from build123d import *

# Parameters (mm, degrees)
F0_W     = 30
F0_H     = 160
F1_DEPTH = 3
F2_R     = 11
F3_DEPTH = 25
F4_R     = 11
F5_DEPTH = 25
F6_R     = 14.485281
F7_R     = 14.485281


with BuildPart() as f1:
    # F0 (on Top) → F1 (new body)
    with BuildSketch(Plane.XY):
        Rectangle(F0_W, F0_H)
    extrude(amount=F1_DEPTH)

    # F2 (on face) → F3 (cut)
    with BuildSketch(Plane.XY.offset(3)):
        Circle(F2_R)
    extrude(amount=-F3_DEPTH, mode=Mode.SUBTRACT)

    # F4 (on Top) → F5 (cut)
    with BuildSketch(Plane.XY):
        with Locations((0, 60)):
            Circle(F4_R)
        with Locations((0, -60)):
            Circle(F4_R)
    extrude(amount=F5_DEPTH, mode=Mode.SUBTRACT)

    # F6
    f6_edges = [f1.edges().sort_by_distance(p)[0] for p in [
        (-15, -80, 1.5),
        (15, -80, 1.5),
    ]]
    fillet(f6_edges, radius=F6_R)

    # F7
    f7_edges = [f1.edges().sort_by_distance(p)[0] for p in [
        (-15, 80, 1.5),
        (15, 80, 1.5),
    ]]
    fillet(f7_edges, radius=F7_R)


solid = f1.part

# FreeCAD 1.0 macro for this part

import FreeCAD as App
import Part
import Sketcher
Q = App.Units.Quantity


def edges_at(feature, points):
    """Names of the edges that pass closest to the given points."""
    edges = feature.Shape.Edges
    near = lambda p: min(range(len(edges)), key=lambda i: edges[i].distToShape(Part.Vertex(*p))[0])
    return sorted({f"Edge{near(p) + 1}" for p in points})

doc = App.newDocument("Part")
body = doc.addObject("PartDesign::Body", "Body")

sketch1 = body.newObject("Sketcher::SketchObject", "Sketch")
sketch1.AttachmentSupport = (doc.getObject("XY_Plane"), [""])
sketch1.MapMode = "FlatFace"
sketch1.addGeometry([
    Part.LineSegment(App.Vector(-15, 80, 0), App.Vector(-15, -80, 0)),
    Part.LineSegment(App.Vector(-15, -80, 0), App.Vector(15, -80, 0)),
    Part.LineSegment(App.Vector(15, -80, 0), App.Vector(15, 80, 0)),
    Part.LineSegment(App.Vector(15, 80, 0), App.Vector(-15, 80, 0)),
], False)
sketch1.addConstraint([
    Sketcher.Constraint("Coincident", 0, 2, 1, 1),
    Sketcher.Constraint("Coincident", 1, 2, 2, 1),
    Sketcher.Constraint("Coincident", 2, 2, 3, 1),
    Sketcher.Constraint("Coincident", 3, 2, 0, 1),
    Sketcher.Constraint("Vertical", 0),
    Sketcher.Constraint("Horizontal", 1),
    Sketcher.Constraint("Vertical", 2),
    Sketcher.Constraint("Horizontal", 3),
    Sketcher.Constraint("Symmetric", 0, 2, 2, 2, -1, 1),
    Sketcher.Constraint("DistanceX", 1, 1, 1, 2, Q("30 mm")),
    Sketcher.Constraint("DistanceY", 0, 2, 0, 1, Q("160 mm")),
])
pad1 = body.newObject("PartDesign::Pad", "Pad")
pad1.Profile = sketch1
pad1.Length = 3

sketch2 = body.newObject("Sketcher::SketchObject", "Sketch001")
sketch2.AttachmentSupport = (doc.getObject("XY_Plane"), [""])
sketch2.MapMode = "FlatFace"
sketch2.AttachmentOffset = App.Placement(App.Vector(0, 0, 3), App.Rotation())
sketch2.addGeometry(Part.Circle(App.Vector(0, 0, 0), App.Vector(0, 0, 1), 11), False)
sketch2.addConstraint([
    Sketcher.Constraint("Coincident", 0, 3, -1, 1),
    Sketcher.Constraint("Diameter", 0, Q("22 mm")),
])
pocket1 = body.newObject("PartDesign::Pocket", "Pocket")
pocket1.Profile = sketch2
pocket1.Length = 25

sketch3 = body.newObject("Sketcher::SketchObject", "Sketch002")
sketch3.AttachmentSupport = (doc.getObject("XY_Plane"), [""])
sketch3.MapMode = "FlatFace"
sketch3.addGeometry([
    Part.Circle(App.Vector(0, 60, 0), App.Vector(0, 0, 1), 11),
    Part.Circle(App.Vector(0, -60, 0), App.Vector(0, 0, 1), 11),
], False)
sketch3.addConstraint([
    Sketcher.Constraint("Equal", 0, 1),
    Sketcher.Constraint("Symmetric", 0, 3, 1, 3, -1, 1),
    Sketcher.Constraint("PointOnObject", 0, 3, -2),
    Sketcher.Constraint("Diameter", 0, Q("22 mm")),
    Sketcher.Constraint("DistanceY", -1, 1, 0, 3, Q("60 mm")),
])
pocket2 = body.newObject("PartDesign::Pocket", "Pocket001")
pocket2.Profile = sketch3
pocket2.Length = 25
pocket2.Reversed = True
doc.recompute()

fillet = body.newObject("PartDesign::Fillet", "Fillet")
fillet.Base = (pocket2, edges_at(pocket2, [(-15, -80, 1.5), (15, -80, 1.5)]))
fillet.Radius = 14.485281
doc.recompute()

fillet2 = body.newObject("PartDesign::Fillet", "Fillet001")
fillet2.Base = (fillet, edges_at(fillet, [(-15, 80, 1.5), (15, 80, 1.5)]))
fillet2.Radius = 14.485281

doc.recompute()
